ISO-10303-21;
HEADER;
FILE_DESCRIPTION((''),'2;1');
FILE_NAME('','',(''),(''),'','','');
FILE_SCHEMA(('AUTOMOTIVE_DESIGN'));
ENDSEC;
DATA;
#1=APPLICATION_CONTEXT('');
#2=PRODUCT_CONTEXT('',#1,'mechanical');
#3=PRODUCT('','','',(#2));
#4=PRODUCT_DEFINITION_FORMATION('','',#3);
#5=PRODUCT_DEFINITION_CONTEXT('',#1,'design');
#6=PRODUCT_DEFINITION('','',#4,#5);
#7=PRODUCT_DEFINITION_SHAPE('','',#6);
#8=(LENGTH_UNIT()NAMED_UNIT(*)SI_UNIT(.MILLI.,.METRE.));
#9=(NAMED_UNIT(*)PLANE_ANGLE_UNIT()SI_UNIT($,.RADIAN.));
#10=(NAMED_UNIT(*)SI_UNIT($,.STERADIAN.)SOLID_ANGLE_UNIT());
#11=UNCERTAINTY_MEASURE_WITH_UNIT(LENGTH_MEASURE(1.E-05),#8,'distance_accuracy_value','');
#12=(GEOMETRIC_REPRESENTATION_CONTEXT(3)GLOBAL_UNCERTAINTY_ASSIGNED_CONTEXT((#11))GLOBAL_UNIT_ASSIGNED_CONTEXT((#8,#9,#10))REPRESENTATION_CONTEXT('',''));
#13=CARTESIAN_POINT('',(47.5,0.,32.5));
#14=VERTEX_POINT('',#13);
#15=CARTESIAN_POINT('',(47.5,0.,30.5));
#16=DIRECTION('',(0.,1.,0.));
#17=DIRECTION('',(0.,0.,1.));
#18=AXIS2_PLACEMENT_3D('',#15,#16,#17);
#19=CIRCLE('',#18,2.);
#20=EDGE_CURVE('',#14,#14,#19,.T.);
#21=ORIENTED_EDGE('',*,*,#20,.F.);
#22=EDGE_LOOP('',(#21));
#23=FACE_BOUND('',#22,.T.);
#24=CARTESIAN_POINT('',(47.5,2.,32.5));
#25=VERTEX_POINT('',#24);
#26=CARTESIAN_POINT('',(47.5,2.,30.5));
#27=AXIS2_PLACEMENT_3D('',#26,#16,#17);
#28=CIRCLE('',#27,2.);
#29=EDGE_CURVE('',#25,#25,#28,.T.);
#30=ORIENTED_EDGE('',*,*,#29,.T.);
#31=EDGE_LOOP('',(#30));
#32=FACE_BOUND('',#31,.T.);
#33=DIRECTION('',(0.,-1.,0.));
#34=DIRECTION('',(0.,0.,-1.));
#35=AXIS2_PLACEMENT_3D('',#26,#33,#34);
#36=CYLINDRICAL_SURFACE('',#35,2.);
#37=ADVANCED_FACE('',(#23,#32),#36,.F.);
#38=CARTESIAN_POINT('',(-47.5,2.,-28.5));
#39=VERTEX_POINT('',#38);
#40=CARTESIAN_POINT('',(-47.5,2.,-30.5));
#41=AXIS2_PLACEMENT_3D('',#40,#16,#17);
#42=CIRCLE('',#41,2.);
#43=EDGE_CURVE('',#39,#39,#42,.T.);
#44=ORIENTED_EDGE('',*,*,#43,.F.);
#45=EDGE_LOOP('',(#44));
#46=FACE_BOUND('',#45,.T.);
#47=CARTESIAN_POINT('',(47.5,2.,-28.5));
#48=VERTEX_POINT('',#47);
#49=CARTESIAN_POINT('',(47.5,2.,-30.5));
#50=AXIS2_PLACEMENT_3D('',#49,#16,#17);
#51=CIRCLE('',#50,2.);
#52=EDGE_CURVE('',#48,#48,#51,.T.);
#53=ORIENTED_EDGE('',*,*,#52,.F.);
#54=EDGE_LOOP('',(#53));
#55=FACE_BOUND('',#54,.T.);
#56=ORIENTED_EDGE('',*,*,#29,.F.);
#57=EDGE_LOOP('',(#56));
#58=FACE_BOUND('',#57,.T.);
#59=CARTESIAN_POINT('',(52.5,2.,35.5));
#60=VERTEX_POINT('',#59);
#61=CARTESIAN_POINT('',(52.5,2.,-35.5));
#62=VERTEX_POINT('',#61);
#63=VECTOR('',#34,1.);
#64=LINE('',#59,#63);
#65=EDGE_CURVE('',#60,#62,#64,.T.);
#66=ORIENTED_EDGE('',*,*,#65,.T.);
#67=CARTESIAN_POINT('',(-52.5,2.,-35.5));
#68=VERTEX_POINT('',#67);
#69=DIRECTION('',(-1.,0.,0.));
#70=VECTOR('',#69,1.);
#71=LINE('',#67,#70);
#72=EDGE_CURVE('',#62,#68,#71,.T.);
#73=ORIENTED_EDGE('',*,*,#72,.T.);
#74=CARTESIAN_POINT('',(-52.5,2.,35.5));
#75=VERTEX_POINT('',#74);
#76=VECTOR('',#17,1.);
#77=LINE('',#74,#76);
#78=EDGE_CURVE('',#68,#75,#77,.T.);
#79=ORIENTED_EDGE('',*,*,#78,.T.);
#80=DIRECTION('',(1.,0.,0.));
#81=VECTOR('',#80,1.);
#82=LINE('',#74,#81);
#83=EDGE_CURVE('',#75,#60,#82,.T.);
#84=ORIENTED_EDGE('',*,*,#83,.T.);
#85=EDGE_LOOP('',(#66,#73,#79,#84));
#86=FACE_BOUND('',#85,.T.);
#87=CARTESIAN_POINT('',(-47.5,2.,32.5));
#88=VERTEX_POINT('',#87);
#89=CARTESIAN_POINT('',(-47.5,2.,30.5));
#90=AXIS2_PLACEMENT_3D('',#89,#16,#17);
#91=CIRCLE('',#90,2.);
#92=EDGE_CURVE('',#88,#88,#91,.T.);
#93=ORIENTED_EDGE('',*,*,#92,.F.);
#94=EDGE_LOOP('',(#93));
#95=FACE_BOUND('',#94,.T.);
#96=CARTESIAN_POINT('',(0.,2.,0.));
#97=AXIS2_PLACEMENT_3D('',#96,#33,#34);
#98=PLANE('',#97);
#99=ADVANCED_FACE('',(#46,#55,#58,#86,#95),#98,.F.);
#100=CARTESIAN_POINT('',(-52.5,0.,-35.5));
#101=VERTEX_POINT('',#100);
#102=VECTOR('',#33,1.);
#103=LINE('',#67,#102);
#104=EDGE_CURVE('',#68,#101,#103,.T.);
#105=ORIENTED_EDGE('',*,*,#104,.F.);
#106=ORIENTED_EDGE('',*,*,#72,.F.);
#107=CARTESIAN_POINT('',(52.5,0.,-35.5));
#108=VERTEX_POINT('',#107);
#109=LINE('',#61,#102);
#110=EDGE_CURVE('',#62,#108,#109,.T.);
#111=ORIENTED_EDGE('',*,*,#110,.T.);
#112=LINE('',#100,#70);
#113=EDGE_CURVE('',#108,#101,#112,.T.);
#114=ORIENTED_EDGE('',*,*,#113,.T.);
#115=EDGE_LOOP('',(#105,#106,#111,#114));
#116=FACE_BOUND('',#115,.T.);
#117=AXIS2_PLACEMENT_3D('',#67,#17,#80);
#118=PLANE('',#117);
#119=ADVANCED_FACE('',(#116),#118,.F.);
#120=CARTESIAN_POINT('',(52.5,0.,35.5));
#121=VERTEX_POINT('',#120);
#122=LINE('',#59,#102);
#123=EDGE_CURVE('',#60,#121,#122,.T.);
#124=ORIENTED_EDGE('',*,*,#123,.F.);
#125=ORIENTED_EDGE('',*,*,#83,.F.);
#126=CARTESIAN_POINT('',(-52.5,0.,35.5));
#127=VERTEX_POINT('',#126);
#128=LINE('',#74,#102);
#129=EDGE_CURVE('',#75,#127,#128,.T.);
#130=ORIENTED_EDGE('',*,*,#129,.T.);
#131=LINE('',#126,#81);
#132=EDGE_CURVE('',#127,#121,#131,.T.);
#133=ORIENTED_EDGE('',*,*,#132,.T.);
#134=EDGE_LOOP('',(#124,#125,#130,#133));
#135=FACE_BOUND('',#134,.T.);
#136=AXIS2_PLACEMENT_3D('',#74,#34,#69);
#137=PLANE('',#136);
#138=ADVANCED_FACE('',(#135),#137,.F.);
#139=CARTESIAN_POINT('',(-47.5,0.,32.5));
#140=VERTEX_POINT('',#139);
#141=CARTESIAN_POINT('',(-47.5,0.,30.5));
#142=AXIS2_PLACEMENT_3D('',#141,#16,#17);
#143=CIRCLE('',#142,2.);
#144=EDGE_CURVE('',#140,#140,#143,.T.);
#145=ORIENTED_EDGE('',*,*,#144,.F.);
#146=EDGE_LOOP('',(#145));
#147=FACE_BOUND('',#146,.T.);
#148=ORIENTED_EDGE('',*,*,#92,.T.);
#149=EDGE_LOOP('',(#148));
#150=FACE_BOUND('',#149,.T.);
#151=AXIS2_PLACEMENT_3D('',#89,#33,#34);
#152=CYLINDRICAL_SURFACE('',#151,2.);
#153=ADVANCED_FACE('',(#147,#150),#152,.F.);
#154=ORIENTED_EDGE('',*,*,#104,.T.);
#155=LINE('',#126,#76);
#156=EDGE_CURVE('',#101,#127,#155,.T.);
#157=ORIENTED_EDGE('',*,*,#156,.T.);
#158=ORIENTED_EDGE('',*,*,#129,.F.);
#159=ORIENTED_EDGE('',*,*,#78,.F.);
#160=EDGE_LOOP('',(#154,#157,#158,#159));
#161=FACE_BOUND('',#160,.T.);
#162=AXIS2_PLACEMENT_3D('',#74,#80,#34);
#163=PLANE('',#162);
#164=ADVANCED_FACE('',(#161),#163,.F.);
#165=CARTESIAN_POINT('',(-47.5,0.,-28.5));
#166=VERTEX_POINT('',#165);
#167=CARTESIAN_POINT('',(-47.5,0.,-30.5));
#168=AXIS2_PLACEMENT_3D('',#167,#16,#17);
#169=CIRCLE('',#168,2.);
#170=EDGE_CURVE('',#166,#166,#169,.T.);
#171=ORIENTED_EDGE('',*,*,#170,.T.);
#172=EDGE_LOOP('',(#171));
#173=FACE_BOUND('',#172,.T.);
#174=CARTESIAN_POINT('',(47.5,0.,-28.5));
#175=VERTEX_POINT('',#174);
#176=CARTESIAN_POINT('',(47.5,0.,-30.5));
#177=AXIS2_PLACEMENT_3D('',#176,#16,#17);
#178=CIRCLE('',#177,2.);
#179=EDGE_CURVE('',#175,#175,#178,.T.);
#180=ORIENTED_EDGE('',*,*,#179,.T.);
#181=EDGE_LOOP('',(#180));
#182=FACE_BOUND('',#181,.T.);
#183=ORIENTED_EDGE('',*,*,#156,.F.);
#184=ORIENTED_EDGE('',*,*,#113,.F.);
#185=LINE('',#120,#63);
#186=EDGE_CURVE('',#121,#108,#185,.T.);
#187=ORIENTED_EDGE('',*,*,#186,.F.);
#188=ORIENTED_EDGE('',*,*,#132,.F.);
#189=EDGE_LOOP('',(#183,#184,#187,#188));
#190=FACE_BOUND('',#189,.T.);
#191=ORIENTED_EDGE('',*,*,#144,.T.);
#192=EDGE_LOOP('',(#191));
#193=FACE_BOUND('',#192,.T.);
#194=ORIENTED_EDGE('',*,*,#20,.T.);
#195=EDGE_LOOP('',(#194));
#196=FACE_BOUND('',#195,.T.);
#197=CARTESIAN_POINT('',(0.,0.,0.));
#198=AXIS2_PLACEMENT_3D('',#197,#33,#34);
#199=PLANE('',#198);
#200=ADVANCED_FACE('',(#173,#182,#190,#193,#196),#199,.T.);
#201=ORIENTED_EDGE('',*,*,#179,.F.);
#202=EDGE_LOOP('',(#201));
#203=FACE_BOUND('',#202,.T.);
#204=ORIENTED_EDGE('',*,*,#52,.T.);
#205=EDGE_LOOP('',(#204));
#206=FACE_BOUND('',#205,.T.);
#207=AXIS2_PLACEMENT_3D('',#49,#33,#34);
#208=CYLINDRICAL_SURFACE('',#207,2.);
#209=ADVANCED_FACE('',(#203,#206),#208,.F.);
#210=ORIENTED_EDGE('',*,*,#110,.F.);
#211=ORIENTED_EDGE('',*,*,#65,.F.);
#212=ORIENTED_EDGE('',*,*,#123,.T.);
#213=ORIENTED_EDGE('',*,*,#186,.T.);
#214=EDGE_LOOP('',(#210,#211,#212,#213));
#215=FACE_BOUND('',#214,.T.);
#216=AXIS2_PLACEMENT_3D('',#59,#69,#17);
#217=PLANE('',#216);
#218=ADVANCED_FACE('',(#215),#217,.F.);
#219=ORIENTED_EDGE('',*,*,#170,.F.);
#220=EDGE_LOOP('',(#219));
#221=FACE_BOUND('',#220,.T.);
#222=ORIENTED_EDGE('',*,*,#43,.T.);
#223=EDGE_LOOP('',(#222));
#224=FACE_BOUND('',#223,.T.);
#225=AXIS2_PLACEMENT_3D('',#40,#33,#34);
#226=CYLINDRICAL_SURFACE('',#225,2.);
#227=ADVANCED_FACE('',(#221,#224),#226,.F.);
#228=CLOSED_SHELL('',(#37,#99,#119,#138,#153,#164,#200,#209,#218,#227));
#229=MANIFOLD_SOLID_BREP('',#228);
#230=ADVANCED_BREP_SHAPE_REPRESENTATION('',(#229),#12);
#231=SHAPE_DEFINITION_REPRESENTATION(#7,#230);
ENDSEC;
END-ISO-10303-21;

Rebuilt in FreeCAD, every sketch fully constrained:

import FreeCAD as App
import Part
import Sketcher

doc = App.newDocument("Part")
body = doc.addObject("PartDesign::Body", "Body")

sketch1 = body.newObject("Sketcher::SketchObject", "Sketch")
sketch1.AttachmentSupport = (doc.getObject("XZ_Plane"), [""])
sketch1.MapMode = "FlatFace"
sketch1.addGeometry(Part.LineSegment(App.Vector(-52.5, -35.5, 0), App.Vector(-52.5, 35.5, 0)), False)
sketch1.addGeometry(Part.LineSegment(App.Vector(-52.5, 35.5, 0), App.Vector(52.5, 35.5, 0)), False)
sketch1.addGeometry(Part.LineSegment(App.Vector(52.5, 35.5, 0), App.Vector(52.5, -35.5, 0)), False)
sketch1.addGeometry(Part.LineSegment(App.Vector(52.5, -35.5, 0), App.Vector(-52.5, -35.5, 0)), False)
sketch1.addGeometry(Part.Circle(App.Vector(-47.5, 30.5, 0), App.Vector(0, 0, 1), 2), False)
sketch1.addGeometry(Part.Circle(App.Vector(47.5, 30.5, 0), App.Vector(0, 0, 1), 2), False)
sketch1.addGeometry(Part.Circle(App.Vector(-47.5, -30.5, 0), App.Vector(0, 0, 1), 2), False)
sketch1.addGeometry(Part.Circle(App.Vector(47.5, -30.5, 0), App.Vector(0, 0, 1), 2), False)
sketch1.addConstraint(Sketcher.Constraint("Coincident", 0, 2, 1, 1))
sketch1.addConstraint(Sketcher.Constraint("Coincident", 1, 2, 2, 1))
sketch1.addConstraint(Sketcher.Constraint("Coincident", 2, 2, 3, 1))
sketch1.addConstraint(Sketcher.Constraint("Coincident", 3, 2, 0, 1))
sketch1.addConstraint(Sketcher.Constraint("Vertical", 0))
sketch1.addConstraint(Sketcher.Constraint("Horizontal", 1))
sketch1.addConstraint(Sketcher.Constraint("Vertical", 2))
sketch1.addConstraint(Sketcher.Constraint("Horizontal", 3))
sketch1.addConstraint(Sketcher.Constraint("Equal", 4, 5))
sketch1.addConstraint(Sketcher.Constraint("Equal", 5, 6))
sketch1.addConstraint(Sketcher.Constraint("Equal", 6, 7))
sketch1.addConstraint(Sketcher.Constraint("Symmetric", 5, 3, 6, 3, -1, 1))
sketch1.addConstraint(Sketcher.Constraint("Symmetric", 4, 3, 7, 3, -1, 1))
sketch1.addConstraint(Sketcher.Constraint("Symmetric", 0, 2, 2, 2, -1, 1))
sketch1.addConstraint(Sketcher.Constraint("Symmetric", 4, 3, 5, 3, -2))
sketch1.addConstraint(Sketcher.Constraint("Diameter", 4, 4.0))
sketch1.addConstraint(Sketcher.Constraint("DistanceX", 1, 1, 1, 2, 105.0))
sketch1.addConstraint(Sketcher.Constraint("DistanceY", 0, 1, 0, 2, 71.0))
sketch1.addConstraint(Sketcher.Constraint("DistanceX", 4, 3, 5, 3, 95.0))
sketch1.addConstraint(Sketcher.Constraint("DistanceY", 6, 3, 4, 3, 61.0))
pad1 = body.newObject("PartDesign::Pad", "Pad")
pad1.Profile = sketch1
pad1.Length = 2
pad1.Reversed = True

doc.recompute()
